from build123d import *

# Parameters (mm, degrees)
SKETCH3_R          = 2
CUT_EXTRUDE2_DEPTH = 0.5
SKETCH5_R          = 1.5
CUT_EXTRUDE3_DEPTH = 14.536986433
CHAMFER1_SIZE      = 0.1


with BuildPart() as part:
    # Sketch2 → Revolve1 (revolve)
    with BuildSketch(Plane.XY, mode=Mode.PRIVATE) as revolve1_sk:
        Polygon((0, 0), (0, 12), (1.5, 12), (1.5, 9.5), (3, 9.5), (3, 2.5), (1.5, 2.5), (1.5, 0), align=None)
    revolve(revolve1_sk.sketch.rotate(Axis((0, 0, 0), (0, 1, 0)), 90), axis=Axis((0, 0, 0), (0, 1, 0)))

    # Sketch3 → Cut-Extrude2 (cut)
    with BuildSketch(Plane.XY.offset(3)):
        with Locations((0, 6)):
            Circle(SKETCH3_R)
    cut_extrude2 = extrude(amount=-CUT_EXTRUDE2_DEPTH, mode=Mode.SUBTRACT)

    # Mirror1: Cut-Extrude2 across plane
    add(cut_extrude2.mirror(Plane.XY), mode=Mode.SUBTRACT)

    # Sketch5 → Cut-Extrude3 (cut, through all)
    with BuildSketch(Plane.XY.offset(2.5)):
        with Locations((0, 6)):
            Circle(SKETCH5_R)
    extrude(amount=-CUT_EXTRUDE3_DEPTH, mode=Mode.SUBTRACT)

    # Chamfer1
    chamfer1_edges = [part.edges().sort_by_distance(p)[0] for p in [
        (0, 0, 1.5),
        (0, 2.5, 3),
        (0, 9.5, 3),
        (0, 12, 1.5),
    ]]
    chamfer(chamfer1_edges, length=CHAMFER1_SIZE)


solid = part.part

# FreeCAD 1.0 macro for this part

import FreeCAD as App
import Part
import Sketcher


def edges_at(feature, points):
    """Names of the edges that pass closest to the given points."""
    edges = feature.Shape.Edges
    near = lambda p: min(range(len(edges)), key=lambda i: edges[i].distToShape(Part.Vertex(*p))[0])
    return sorted({f"Edge{near(p) + 1}" for p in points})

doc = App.newDocument("Part")
body = doc.addObject("PartDesign::Body", "Body")

# Sketch on XY plane
sketch1 = doc.addObject("Sketcher::SketchObject", "Sketch")
body.addObject(sketch1)
sketch1.AttachmentSupport = (doc.XY_Plane, [""])
sketch1.MapMode = "FlatFace"
sketch1.addGeometry([
    Part.LineSegment(App.Vector(0, 12, 0), App.Vector(0, 0, 0)),  # 0
    Part.LineSegment(App.Vector(0, 0, 0), App.Vector(1.5, 0, 0)),  # 1
    Part.LineSegment(App.Vector(1.5, 0, 0), App.Vector(1.5, 2.5, 0)),  # 2
    Part.LineSegment(App.Vector(1.5, 2.5, 0), App.Vector(3, 2.5, 0)),  # 3
    Part.LineSegment(App.Vector(3, 2.5, 0), App.Vector(3, 9.5, 0)),  # 4
    Part.LineSegment(App.Vector(3, 9.5, 0), App.Vector(1.5, 9.5, 0)),  # 5
    Part.LineSegment(App.Vector(1.5, 9.5, 0), App.Vector(1.5, 12, 0)),  # 6
    Part.LineSegment(App.Vector(1.5, 12, 0), App.Vector(0, 12, 0)),  # 7
], False)
sketch1.addConstraint([
    Sketcher.Constraint("Coincident", 0, 2, 1, 1),
    Sketcher.Constraint("Coincident", 1, 2, 2, 1),
    Sketcher.Constraint("Coincident", 2, 2, 3, 1),
    Sketcher.Constraint("Coincident", 3, 2, 4, 1),
    Sketcher.Constraint("Coincident", 4, 2, 5, 1),
    Sketcher.Constraint("Coincident", 5, 2, 6, 1),
    Sketcher.Constraint("Coincident", 6, 2, 7, 1),
    Sketcher.Constraint("Coincident", 7, 2, 0, 1),
    Sketcher.Constraint("Vertical", 0),
    Sketcher.Constraint("Horizontal", 1),
    Sketcher.Constraint("Vertical", 2),
    Sketcher.Constraint("Horizontal", 3),
    Sketcher.Constraint("Vertical", 4),
    Sketcher.Constraint("Horizontal", 5),
    Sketcher.Constraint("Vertical", 6),
    Sketcher.Constraint("Horizontal", 7),
    Sketcher.Constraint("Coincident", 0, 2, -1, 1),
    Sketcher.Constraint("Vertical", 2, 2, 5, 2),
    Sketcher.Constraint("Equal", 1, 3),
    Sketcher.Constraint("Equal", 2, 6),
    Sketcher.Constraint("DistanceY", 0, 2, 0, 1, 12.0),
    Sketcher.Constraint("DistanceY", 4, 1, 4, 2, 7.0),
    Sketcher.Constraint("DistanceX", 1, 1, 1, 2, 1.5),
])
revolution = doc.addObject("PartDesign::Revolution", "Revolution")
body.addObject(revolution)
revolution.Profile = sketch1
revolution.ReferenceAxis = (sketch1, ["V_Axis"])
revolution.Angle = 360

# Sketch on XY plane
sketch2 = doc.addObject("Sketcher::SketchObject", "Sketch001")
body.addObject(sketch2)
sketch2.AttachmentSupport = (doc.XY_Plane, [""])
sketch2.MapMode = "FlatFace"
sketch2.AttachmentOffset = App.Placement(App.Vector(0, 0, 3), App.Rotation())
sketch2.addGeometry(Part.Circle(App.Vector(0, 6, 0), App.Vector(0, 0, 1), 2), False)
sketch2.addConstraint([
    Sketcher.Constraint("PointOnObject", 0, 3, -2),
    Sketcher.Constraint("Diameter", 0, 4.0),
    Sketcher.Constraint("DistanceY", -1, 1, 0, 3, 6.0),
])
pocket1 = doc.addObject("PartDesign::Pocket", "Pocket")
body.addObject(pocket1)
pocket1.Profile = sketch2
pocket1.Length = 0.5
doc.recompute()

mirrored = doc.addObject("PartDesign::Mirrored", "Mirrored")
body.addObject(mirrored)
mirrored.Originals = [pocket1]
mirrored.MirrorPlane = (doc.XY_Plane, [""])
body.Tip = mirrored

# Sketch on XY plane
sketch3 = doc.addObject("Sketcher::SketchObject", "Sketch002")
body.addObject(sketch3)
sketch3.AttachmentSupport = (doc.XY_Plane, [""])
sketch3.MapMode = "FlatFace"
sketch3.AttachmentOffset = App.Placement(App.Vector(0, 0, 2.5), App.Rotation())
sketch3.addGeometry(Part.Circle(App.Vector(0, 6, 0), App.Vector(0, 0, 1), 1.5), False)
sketch3.addConstraint([
    Sketcher.Constraint("PointOnObject", 0, 3, -2),
    Sketcher.Constraint("Diameter", 0, 3.0),
    Sketcher.Constraint("DistanceY", -1, 1, 0, 3, 6.0),
])
pocket2 = doc.addObject("PartDesign::Pocket", "Pocket001")
body.addObject(pocket2)
pocket2.Profile = sketch3
pocket2.Type = "ThroughAll"
doc.recompute()

chamfer = doc.addObject("PartDesign::Chamfer", "Chamfer")
body.addObject(chamfer)
chamfer.Base = (pocket2, edges_at(pocket2, [
    (0, 0, 1.5),
    (0, 2.5, 3),
    (0, 9.5, 3),
    (0, 12, 1.5),
]))
chamfer.Size = 0.1

doc.recompute()
